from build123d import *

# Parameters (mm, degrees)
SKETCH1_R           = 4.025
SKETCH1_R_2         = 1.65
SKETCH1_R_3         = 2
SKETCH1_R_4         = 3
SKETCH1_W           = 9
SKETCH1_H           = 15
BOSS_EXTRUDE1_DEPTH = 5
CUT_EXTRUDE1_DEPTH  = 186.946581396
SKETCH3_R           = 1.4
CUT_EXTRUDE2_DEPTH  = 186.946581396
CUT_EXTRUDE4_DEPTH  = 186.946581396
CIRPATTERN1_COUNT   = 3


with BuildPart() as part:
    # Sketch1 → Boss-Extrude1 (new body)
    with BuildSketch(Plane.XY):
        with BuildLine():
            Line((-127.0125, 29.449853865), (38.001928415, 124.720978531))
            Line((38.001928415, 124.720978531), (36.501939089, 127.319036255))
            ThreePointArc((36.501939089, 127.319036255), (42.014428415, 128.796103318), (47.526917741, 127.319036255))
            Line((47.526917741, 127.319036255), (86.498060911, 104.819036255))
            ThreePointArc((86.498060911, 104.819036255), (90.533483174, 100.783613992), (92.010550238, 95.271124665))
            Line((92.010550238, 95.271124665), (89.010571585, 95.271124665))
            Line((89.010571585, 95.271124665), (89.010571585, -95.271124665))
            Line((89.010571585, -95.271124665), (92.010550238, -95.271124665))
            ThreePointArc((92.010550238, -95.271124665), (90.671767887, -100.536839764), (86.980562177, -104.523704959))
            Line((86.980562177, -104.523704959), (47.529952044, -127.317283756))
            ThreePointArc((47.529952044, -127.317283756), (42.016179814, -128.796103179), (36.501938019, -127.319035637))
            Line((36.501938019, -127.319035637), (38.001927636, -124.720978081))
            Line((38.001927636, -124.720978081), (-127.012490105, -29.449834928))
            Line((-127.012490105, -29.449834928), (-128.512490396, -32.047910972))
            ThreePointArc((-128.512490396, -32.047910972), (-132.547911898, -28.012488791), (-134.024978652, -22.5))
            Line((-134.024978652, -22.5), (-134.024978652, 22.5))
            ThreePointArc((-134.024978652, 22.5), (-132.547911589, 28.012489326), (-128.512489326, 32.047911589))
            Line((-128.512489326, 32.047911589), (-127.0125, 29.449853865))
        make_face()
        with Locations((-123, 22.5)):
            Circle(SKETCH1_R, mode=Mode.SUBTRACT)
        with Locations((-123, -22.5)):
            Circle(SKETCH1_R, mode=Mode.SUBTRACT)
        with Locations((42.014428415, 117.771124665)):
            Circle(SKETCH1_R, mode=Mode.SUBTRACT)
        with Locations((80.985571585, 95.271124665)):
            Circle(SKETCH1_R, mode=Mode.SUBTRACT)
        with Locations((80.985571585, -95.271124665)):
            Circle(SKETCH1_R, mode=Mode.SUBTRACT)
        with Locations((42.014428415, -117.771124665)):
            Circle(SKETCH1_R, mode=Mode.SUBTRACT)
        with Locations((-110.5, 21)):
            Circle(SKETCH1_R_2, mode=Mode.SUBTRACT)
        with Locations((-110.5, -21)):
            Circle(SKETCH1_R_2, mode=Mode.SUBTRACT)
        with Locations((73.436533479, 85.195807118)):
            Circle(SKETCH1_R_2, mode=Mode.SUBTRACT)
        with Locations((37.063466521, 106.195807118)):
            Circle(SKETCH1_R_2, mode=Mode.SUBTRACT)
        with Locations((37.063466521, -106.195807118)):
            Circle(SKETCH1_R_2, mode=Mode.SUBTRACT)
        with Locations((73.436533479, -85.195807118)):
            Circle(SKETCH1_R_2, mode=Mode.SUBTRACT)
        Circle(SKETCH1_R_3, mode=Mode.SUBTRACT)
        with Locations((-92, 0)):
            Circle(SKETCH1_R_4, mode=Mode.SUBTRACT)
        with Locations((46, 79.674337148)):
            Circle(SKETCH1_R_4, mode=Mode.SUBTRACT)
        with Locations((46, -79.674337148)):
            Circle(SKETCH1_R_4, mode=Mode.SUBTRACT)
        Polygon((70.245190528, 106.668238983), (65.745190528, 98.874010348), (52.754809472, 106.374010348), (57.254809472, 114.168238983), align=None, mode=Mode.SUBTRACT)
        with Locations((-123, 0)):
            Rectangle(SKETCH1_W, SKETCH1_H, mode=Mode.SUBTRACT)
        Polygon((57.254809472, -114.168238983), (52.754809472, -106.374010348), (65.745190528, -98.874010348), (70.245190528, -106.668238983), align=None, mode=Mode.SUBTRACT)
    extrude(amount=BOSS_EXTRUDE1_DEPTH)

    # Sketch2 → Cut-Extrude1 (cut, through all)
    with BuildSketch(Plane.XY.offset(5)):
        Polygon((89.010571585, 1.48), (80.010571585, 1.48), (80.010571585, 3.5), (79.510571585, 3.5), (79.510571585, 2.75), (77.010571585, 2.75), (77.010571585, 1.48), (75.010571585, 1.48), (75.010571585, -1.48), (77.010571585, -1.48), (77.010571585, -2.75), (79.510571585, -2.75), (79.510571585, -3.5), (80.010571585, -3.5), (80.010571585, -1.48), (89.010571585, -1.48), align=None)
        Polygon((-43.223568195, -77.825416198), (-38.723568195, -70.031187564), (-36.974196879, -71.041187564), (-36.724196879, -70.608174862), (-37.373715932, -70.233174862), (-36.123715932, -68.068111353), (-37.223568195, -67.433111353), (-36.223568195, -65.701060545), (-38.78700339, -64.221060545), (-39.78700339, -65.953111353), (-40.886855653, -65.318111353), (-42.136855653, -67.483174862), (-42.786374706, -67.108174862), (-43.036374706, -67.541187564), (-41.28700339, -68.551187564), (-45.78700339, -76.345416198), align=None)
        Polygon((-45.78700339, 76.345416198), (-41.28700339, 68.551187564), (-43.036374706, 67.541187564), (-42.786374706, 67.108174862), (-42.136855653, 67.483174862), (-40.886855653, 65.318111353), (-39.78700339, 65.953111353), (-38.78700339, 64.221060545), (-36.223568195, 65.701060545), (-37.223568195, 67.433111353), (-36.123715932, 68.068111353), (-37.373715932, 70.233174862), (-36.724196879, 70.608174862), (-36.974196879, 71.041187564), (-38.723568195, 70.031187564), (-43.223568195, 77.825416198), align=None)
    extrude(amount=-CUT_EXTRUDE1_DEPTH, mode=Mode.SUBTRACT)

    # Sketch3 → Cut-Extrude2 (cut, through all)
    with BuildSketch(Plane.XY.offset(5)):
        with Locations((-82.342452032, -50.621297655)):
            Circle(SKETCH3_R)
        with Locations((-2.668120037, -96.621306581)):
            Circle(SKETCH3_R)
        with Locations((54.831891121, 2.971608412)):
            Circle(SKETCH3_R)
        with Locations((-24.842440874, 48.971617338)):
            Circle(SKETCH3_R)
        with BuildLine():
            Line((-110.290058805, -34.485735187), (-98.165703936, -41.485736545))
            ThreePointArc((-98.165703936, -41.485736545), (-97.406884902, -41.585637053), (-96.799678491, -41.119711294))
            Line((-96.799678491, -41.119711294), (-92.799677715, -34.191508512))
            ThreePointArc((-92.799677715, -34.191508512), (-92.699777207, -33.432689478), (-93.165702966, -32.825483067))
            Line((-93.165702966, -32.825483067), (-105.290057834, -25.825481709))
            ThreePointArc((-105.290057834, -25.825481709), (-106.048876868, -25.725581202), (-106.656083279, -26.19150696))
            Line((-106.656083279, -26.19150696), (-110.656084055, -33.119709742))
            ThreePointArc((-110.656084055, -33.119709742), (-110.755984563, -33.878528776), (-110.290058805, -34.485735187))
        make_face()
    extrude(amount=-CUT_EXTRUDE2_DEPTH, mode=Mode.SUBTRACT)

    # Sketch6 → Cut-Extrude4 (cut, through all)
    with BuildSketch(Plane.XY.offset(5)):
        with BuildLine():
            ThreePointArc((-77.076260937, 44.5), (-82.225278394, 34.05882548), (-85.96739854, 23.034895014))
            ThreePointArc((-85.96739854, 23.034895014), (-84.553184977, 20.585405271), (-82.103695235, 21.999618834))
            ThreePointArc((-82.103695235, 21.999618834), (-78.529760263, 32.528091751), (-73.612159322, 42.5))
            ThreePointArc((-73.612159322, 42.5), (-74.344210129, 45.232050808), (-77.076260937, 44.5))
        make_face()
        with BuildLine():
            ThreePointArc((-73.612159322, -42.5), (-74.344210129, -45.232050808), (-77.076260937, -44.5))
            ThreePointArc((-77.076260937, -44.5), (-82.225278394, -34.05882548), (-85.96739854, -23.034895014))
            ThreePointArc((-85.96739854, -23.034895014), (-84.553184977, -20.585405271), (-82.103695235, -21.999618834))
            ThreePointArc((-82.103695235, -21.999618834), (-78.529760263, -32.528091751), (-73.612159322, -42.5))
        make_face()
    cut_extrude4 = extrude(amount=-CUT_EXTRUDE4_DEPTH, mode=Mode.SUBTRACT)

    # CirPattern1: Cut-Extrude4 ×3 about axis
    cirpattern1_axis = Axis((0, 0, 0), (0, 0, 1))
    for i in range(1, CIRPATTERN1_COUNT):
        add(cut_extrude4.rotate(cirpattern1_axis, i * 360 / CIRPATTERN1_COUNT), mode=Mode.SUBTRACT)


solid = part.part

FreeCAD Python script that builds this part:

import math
import FreeCAD as App
import Part
import Sketcher
from FreeCAD import Vector
Q = App.Units.Quantity

doc = App.newDocument("Part")
body = doc.addObject("PartDesign::Body", "Body")

sketch1 = body.newObject("Sketcher::SketchObject", "Sketch")
sketch1.AttachmentSupport = (doc.getObject("XY_Plane"), [""])
sketch1.MapMode = "FlatFace"
sketch1.addGeometry(Part.LineSegment(Vector(38.001928, 124.720979, 0), Vector(-127.0125, 29.449854, 0)), False)
sketch1.addGeometry(Part.LineSegment(Vector(-127.0125, 29.449854, 0), Vector(-128.512489, 32.047912, 0)), False)
sketch1.addGeometry(Part.ArcOfCircle(Part.Circle(Vector(-123, 22.5, 0), Vector(0, 0, 1), 11.024979), math.radians(120), math.radians(180)), False)
sketch1.addGeometry(Part.LineSegment(Vector(-134.024979, 22.5, 0), Vector(-134.024979, -22.5, 0)), False)
sketch1.addGeometry(Part.ArcOfCircle(Part.Circle(Vector(-123, -22.5, 0), Vector(0, 0, 1), 11.024979), math.radians(180), math.radians(239.999994)), False)
sketch1.addGeometry(Part.LineSegment(Vector(-128.51249, -32.047911, 0), Vector(-127.01249, -29.449835, 0)), False)
sketch1.addGeometry(Part.LineSegment(Vector(-127.01249, -29.449835, 0), Vector(38.001928, -124.720978, 0)), False)
sketch1.addGeometry(Part.LineSegment(Vector(38.001928, -124.720978, 0), Vector(36.501938, -127.319036, 0)), False)
sketch1.addGeometry(Part.ArcOfCircle(Part.Circle(Vector(42.014428, -117.771125, 0), Vector(0, 0, 1), 11.024979), math.radians(-120.000006), math.radians(-59.98179)), False)
sketch1.addGeometry(Part.LineSegment(Vector(47.529952, -127.317284, 0), Vector(86.980562, -104.523705, 0)), False)
sketch1.addGeometry(Part.ArcOfCircle(Part.Circle(Vector(80.985572, -95.271125, 0), Vector(0, 0, 1), 11.024979), math.radians(-57.059734), math.radians(0)), False)
sketch1.addGeometry(Part.LineSegment(Vector(92.01055, -95.271125, 0), Vector(89.010572, -95.271125, 0)), False)
sketch1.addGeometry(Part.LineSegment(Vector(89.010572, -95.271125, 0), Vector(89.010572, 95.271125, 0)), False)
sketch1.addGeometry(Part.LineSegment(Vector(89.010572, 95.271125, 0), Vector(92.01055, 95.271125, 0)), False)
sketch1.addGeometry(Part.ArcOfCircle(Part.Circle(Vector(80.985572, 95.271125, 0), Vector(0, 0, 1), 11.024979), math.radians(0), math.radians(60)), False)
sketch1.addGeometry(Part.LineSegment(Vector(86.498061, 104.819036, 0), Vector(47.526918, 127.319036, 0)), False)
sketch1.addGeometry(Part.ArcOfCircle(Part.Circle(Vector(42.014428, 117.771125, 0), Vector(0, 0, 1), 11.024979), math.radians(60), math.radians(120)), False)
sketch1.addGeometry(Part.LineSegment(Vector(36.501939, 127.319036, 0), Vector(38.001928, 124.720979, 0)), False)
sketch1.addGeometry(Part.Circle(Vector(80.985572, -95.271125, 0), Vector(0, 0, 1), 4.025), False)
sketch1.addGeometry(Part.LineSegment(Vector(57.254809, -114.168239, 0), Vector(52.754809, -106.37401, 0)), False)
sketch1.addGeometry(Part.LineSegment(Vector(52.754809, -106.37401, 0), Vector(65.745191, -98.87401, 0)), False)
sketch1.addGeometry(Part.LineSegment(Vector(65.745191, -98.87401, 0), Vector(70.245191, -106.668239, 0)), False)
sketch1.addGeometry(Part.LineSegment(Vector(70.245191, -106.668239, 0), Vector(57.254809, -114.168239, 0)), False)
sketch1.addGeometry(Part.Circle(Vector(42.014428, -117.771125, 0), Vector(0, 0, 1), 4.025), False)
sketch1.addGeometry(Part.Circle(Vector(37.063467, -106.195807, 0), Vector(0, 0, 1), 1.65), False)
sketch1.addGeometry(Part.Circle(Vector(73.436533, -85.195807, 0), Vector(0, 0, 1), 1.65), False)
sketch1.addGeometry(Part.Circle(Vector(46, -79.674337, 0), Vector(0, 0, 1), 3), False)
sketch1.addGeometry(Part.Circle(Vector(-110.5, -21, 0), Vector(0, 0, 1), 1.65), False)
sketch1.addGeometry(Part.Circle(Vector(-123, -22.5, 0), Vector(0, 0, 1), 4.025), False)
sketch1.addGeometry(Part.Circle(Vector(0, 0, 0), Vector(0, 0, 1), 2), False)
sketch1.addGeometry(Part.Circle(Vector(73.436533, 85.195807, 0), Vector(0, 0, 1), 1.65), False)
sketch1.addGeometry(Part.Circle(Vector(46, 79.674337, 0), Vector(0, 0, 1), 3), False)
sketch1.addGeometry(Part.Circle(Vector(80.985572, 95.271125, 0), Vector(0, 0, 1), 4.025), False)
sketch1.addGeometry(Part.LineSegment(Vector(70.245191, 106.668239, 0), Vector(65.745191, 98.87401, 0)), False)
sketch1.addGeometry(Part.LineSegment(Vector(65.745191, 98.87401, 0), Vector(52.754809, 106.37401, 0)), False)
sketch1.addGeometry(Part.LineSegment(Vector(52.754809, 106.37401, 0), Vector(57.254809, 114.168239, 0)), False)
sketch1.addGeometry(Part.LineSegment(Vector(57.254809, 114.168239, 0), Vector(70.245191, 106.668239, 0)), False)
sketch1.addGeometry(Part.Circle(Vector(37.063467, 106.195807, 0), Vector(0, 0, 1), 1.65), False)
sketch1.addGeometry(Part.Circle(Vector(42.014428, 117.771125, 0), Vector(0, 0, 1), 4.025), False)
sketch1.addGeometry(Part.Circle(Vector(-92, 0, 0), Vector(0, 0, 1), 3), False)
sketch1.addGeometry(Part.LineSegment(Vector(-127.5, -7.5, 0), Vector(-127.5, 7.5, 0)), False)
sketch1.addGeometry(Part.LineSegment(Vector(-127.5, 7.5, 0), Vector(-118.5, 7.5, 0)), False)
sketch1.addGeometry(Part.LineSegment(Vector(-118.5, 7.5, 0), Vector(-118.5, -7.5, 0)), False)
sketch1.addGeometry(Part.LineSegment(Vector(-118.5, -7.5, 0), Vector(-127.5, -7.5, 0)), False)
sketch1.addGeometry(Part.Circle(Vector(-110.5, 21, 0), Vector(0, 0, 1), 1.65), False)
sketch1.addGeometry(Part.Circle(Vector(-123, 22.5, 0), Vector(0, 0, 1), 4.025), False)
sketch1.addConstraint(Sketcher.Constraint("Coincident", 0, 2, 1, 1))
sketch1.addConstraint(Sketcher.Constraint("Coincident", 1, 2, 2, 1))
sketch1.addConstraint(Sketcher.Constraint("Coincident", 2, 2, 3, 1))
sketch1.addConstraint(Sketcher.Constraint("Coincident", 3, 2, 4, 1))
sketch1.addConstraint(Sketcher.Constraint("Coincident", 4, 2, 5, 1))
sketch1.addConstraint(Sketcher.Constraint("Coincident", 5, 2, 6, 1))
sketch1.addConstraint(Sketcher.Constraint("Coincident", 6, 2, 7, 1))
sketch1.addConstraint(Sketcher.Constraint("Coincident", 7, 2, 8, 1))
sketch1.addConstraint(Sketcher.Constraint("Coincident", 8, 2, 9, 1))
sketch1.addConstraint(Sketcher.Constraint("Coincident", 9, 2, 10, 1))
sketch1.addConstraint(Sketcher.Constraint("Coincident", 10, 2, 11, 1))
sketch1.addConstraint(Sketcher.Constraint("Coincident", 11, 2, 12, 1))
sketch1.addConstraint(Sketcher.Constraint("Coincident", 12, 2, 13, 1))
sketch1.addConstraint(Sketcher.Constraint("Coincident", 13, 2, 14, 1))
sketch1.addConstraint(Sketcher.Constraint("Coincident", 14, 2, 15, 1))
sketch1.addConstraint(Sketcher.Constraint("Coincident", 15, 2, 16, 1))
sketch1.addConstraint(Sketcher.Constraint("Coincident", 16, 2, 17, 1))
sketch1.addConstraint(Sketcher.Constraint("Coincident", 17, 2, 0, 1))
sketch1.addConstraint(Sketcher.Constraint("Coincident", 19, 2, 20, 1))
sketch1.addConstraint(Sketcher.Constraint("Coincident", 20, 2, 21, 1))
sketch1.addConstraint(Sketcher.Constraint("Coincident", 21, 2, 22, 1))
sketch1.addConstraint(Sketcher.Constraint("Coincident", 22, 2, 19, 1))
sketch1.addConstraint(Sketcher.Constraint("Coincident", 33, 2, 34, 1))
sketch1.addConstraint(Sketcher.Constraint("Coincident", 34, 2, 35, 1))
sketch1.addConstraint(Sketcher.Constraint("Coincident", 35, 2, 36, 1))
sketch1.addConstraint(Sketcher.Constraint("Coincident", 36, 2, 33, 1))
sketch1.addConstraint(Sketcher.Constraint("Coincident", 40, 2, 41, 1))
sketch1.addConstraint(Sketcher.Constraint("Coincident", 41, 2, 42, 1))
sketch1.addConstraint(Sketcher.Constraint("Coincident", 42, 2, 43, 1))
sketch1.addConstraint(Sketcher.Constraint("Coincident", 43, 2, 40, 1))
sketch1.addConstraint(Sketcher.Constraint("Vertical", 3))
sketch1.addConstraint(Sketcher.Constraint("Horizontal", 11))
sketch1.addConstraint(Sketcher.Constraint("Vertical", 12))
sketch1.addConstraint(Sketcher.Constraint("Horizontal", 13))
sketch1.addConstraint(Sketcher.Constraint("Vertical", 40))
sketch1.addConstraint(Sketcher.Constraint("Horizontal", 41))
sketch1.addConstraint(Sketcher.Constraint("Vertical", 42))
sketch1.addConstraint(Sketcher.Constraint("Horizontal", 43))
sketch1.addConstraint(Sketcher.Constraint("Coincident", 29, 3, -1, 1))
sketch1.addConstraint(Sketcher.Constraint("Coincident", 18, 3, 10, 3))
sketch1.addConstraint(Sketcher.Constraint("Coincident", 23, 3, 8, 3))
sketch1.addConstraint(Sketcher.Constraint("Coincident", 28, 3, 4, 3))
sketch1.addConstraint(Sketcher.Constraint("Coincident", 32, 3, 14, 3))
sketch1.addConstraint(Sketcher.Constraint("Coincident", 38, 3, 16, 3))
sketch1.addConstraint(Sketcher.Constraint("Coincident", 45, 3, 2, 3))
sketch1.addConstraint(Sketcher.Constraint("PointOnObject", 39, 3, -1))
sketch1.addConstraint(Sketcher.Constraint("Diameter", 26, Q("6 mm")))
sketch1.addConstraint(Sketcher.Constraint("Diameter", 29, Q("4 mm")))
sketch1.addConstraint(Sketcher.Constraint("Diameter", 31, Q("6 mm")))
sketch1.addConstraint(Sketcher.Constraint("Diameter", 39, Q("6 mm")))
sketch1.addConstraint(Sketcher.Constraint("Diameter", 24, Q("3.3 mm")))
sketch1.addConstraint(Sketcher.Constraint("Diameter", 25, Q("3.3 mm")))
sketch1.addConstraint(Sketcher.Constraint("Diameter", 27, Q("3.3 mm")))
sketch1.addConstraint(Sketcher.Constraint("Diameter", 30, Q("3.3 mm")))
sketch1.addConstraint(Sketcher.Constraint("Diameter", 37, Q("3.3 mm")))
sketch1.addConstraint(Sketcher.Constraint("Diameter", 44, Q("3.3 mm")))
sketch1.addConstraint(Sketcher.Constraint("Diameter", 18, Q("8.05 mm")))
sketch1.addConstraint(Sketcher.Constraint("Diameter", 23, Q("8.05 mm")))
sketch1.addConstraint(Sketcher.Constraint("Diameter", 28, Q("8.05 mm")))
sketch1.addConstraint(Sketcher.Constraint("Diameter", 32, Q("8.05 mm")))
sketch1.addConstraint(Sketcher.Constraint("Diameter", 38, Q("8.05 mm")))
sketch1.addConstraint(Sketcher.Constraint("Diameter", 45, Q("8.05 mm")))
sketch1.addConstraint(Sketcher.Constraint("DistanceX", 41, 1, 41, 2, Q("9 mm")))
sketch1.addConstraint(Sketcher.Constraint("DistanceY", 3, 2, 3, 1, Q("45 mm")))
sketch1.addConstraint(Sketcher.Constraint("DistanceY", 40, 1, 40, 2, Q("15 mm")))
sketch1.addConstraint(Sketcher.Constraint("Distance", 5, Q("3 mm")))
sketch1.addConstraint(Sketcher.Constraint("Distance", 15, Q("45 mm")))
sketch1.addConstraint(Sketcher.Constraint("Distance", 19, Q("9 mm")))
sketch1.addConstraint(Sketcher.Constraint("Distance", 20, Q("15 mm")))
sketch1.addConstraint(Sketcher.Constraint("Distance", 21, Q("9 mm")))
sketch1.addConstraint(Sketcher.Constraint("Distance", 22, Q("15 mm")))
sketch1.addConstraint(Sketcher.Constraint("Distance", 33, Q("9 mm")))
sketch1.addConstraint(Sketcher.Constraint("Distance", 34, Q("15 mm")))
sketch1.addConstraint(Sketcher.Constraint("Distance", 35, Q("9 mm")))
sketch1.addConstraint(Sketcher.Constraint("Distance", 36, Q("15 mm")))
sketch1.addConstraint(Sketcher.Constraint("DistanceX", 2, 3, -1, 1, Q("123 mm")))
sketch1.addConstraint(Sketcher.Constraint("DistanceX", 4, 3, -1, 1, Q("123 mm")))
sketch1.addConstraint(Sketcher.Constraint("DistanceX", -1, 1, 26, 3, Q("46 mm")))
sketch1.addConstraint(Sketcher.Constraint("DistanceY", 27, 3, -1, 1, Q("21 mm")))
sketch1.addConstraint(Sketcher.Constraint("DistanceX", -1, 1, 31, 3, Q("46 mm")))
sketch1.addConstraint(Sketcher.Constraint("DistanceX", 39, 3, -1, 1, Q("92 mm")))
sketch1.addConstraint(Sketcher.Constraint("DistanceY", -1, 1, 44, 3, Q("21 mm")))
sketch1.addConstraint(Sketcher.Constraint("DistanceY", 4, 3, 2, 3, Q("45 mm")))
sketch1.addConstraint(Sketcher.Constraint("DistanceY", 24, 3, 25, 3, Q("21 mm")))
sketch1.addConstraint(Sketcher.Constraint("DistanceY", 30, 3, 37, 3, Q("21 mm")))
sketch1.addConstraint(Sketcher.Constraint("DistanceY", 3, 2, 2, 3, Q("45 mm")))
sketch1.addConstraint(Sketcher.Constraint("DistanceY", 40, 2, 2, 3, Q("15 mm")))
sketch1.addConstraint(Sketcher.Constraint("DistanceX", 40, 2, 44, 3, Q("17 mm")))
sketch1.addConstraint(Sketcher.Constraint("DistanceX", 42, 2, 27, 3, Q("8 mm")))
sketch1.addConstraint(Sketcher.Constraint("DistanceY", -1, 1, 2, 3, Q("22.5 mm")))
sketch1.addConstraint(Sketcher.Constraint("DistanceX", 27, 3, -1, 1, Q("110.5 mm")))
sketch1.addConstraint(Sketcher.Constraint("DistanceY", 8, 3, 10, 3, Q("22.5 mm")))
sketch1.addConstraint(Sketcher.Constraint("DistanceY", 14, 3, 16, 3, Q("22.5 mm")))
sketch1.addConstraint(Sketcher.Constraint("DistanceX", 4, 2, 5, 2, Q("1.5 mm")))
sketch1.addConstraint(Sketcher.Constraint("DistanceY", 12, 2, 16, 3, Q("22.5 mm")))
sketch1.addConstraint(Sketcher.Constraint("DistanceY", 14, 2, 15, 2, Q("22.5 mm")))
sketch1.addConstraint(Sketcher.Constraint("DistanceY", 19, 2, 20, 2, Q("7.5 mm")))
sketch1.addConstraint(Sketcher.Constraint("DistanceX", 20, 2, 21, 2, Q("4.5 mm")))
sketch1.addConstraint(Sketcher.Constraint("DistanceY", 33, 2, 34, 2, Q("7.5 mm")))
sketch1.addConstraint(Sketcher.Constraint("DistanceX", 34, 2, 35, 2, Q("4.5 mm")))
sketch1.addConstraint(Sketcher.Constraint("Radius", 2, Q("11.024979 mm")))
sketch1.addConstraint(Sketcher.Constraint("Radius", 8, Q("11.024979 mm")))
sketch1.addConstraint(Sketcher.Constraint("Radius", 10, Q("11.024979 mm")))
sketch1.addConstraint(Sketcher.Constraint("Radius", 14, Q("11.024979 mm")))
sketch1.addConstraint(Sketcher.Constraint("Radius", 16, Q("11.024979 mm")))
sketch1.addConstraint(Sketcher.Constraint("DistanceX", 10, 3, 11, 2, Q("8.025 mm")))
sketch1.addConstraint(Sketcher.Constraint("DistanceX", 32, 3, 12, 2, Q("8.025 mm")))
sketch1.addConstraint(Sketcher.Constraint("DistanceY", 12, 1, 12, 2, Q("190.542249 mm")))
sketch1.addConstraint(Sketcher.Constraint("DistanceX", 0, 2, -1, 1, Q("127.0125 mm")))
sketch1.addConstraint(Sketcher.Constraint("DistanceX", 6, 2, 8, 3, Q("4.012501 mm")))
sketch1.addConstraint(Sketcher.Constraint("DistanceY", 7, 2, 26, 3, Q("47.644698 mm")))
sketch1.addConstraint(Sketcher.Constraint("DistanceY", 31, 3, 16, 2, Q("47.644699 mm")))
sketch1.addConstraint(Sketcher.Constraint("DistanceX", 17, 2, 16, 3, Q("4.0125 mm")))
sketch1.addConstraint(Sketcher.Constraint("Distance", 0, Q("190.542249 mm")))
sketch1.addConstraint(Sketcher.Constraint("Distance", 1, Q("2.999979 mm")))
sketch1.addConstraint(Sketcher.Constraint("Distance", 6, Q("190.542249 mm")))
sketch1.addConstraint(Sketcher.Constraint("Distance", 7, Q("2.999979 mm")))
sketch1.addConstraint(Sketcher.Constraint("Distance", 17, Q("2.999979 mm")))
sketch1.addConstraint(Sketcher.Constraint("DistanceX", -1, 1, 8, 3, Q("42.014428 mm")))
sketch1.addConstraint(Sketcher.Constraint("DistanceX", -1, 1, 10, 3, Q("80.985572 mm")))
sketch1.addConstraint(Sketcher.Constraint("DistanceX", 1, 2, -1, 1, Q("128.512489 mm")))
sketch1.addConstraint(Sketcher.Constraint("DistanceX", 4, 2, -1, 1, Q("128.51249 mm")))
sketch1.addConstraint(Sketcher.Constraint("DistanceX", -1, 1, 7, 2, Q("36.501938 mm")))
sketch1.addConstraint(Sketcher.Constraint("DistanceX", -1, 1, 14, 2, Q("86.498061 mm")))
sketch1.addConstraint(Sketcher.Constraint("DistanceX", -1, 1, 16, 2, Q("36.501939 mm")))
sketch1.addConstraint(Sketcher.Constraint("DistanceX", -1, 1, 19, 2, Q("52.754809 mm")))
sketch1.addConstraint(Sketcher.Constraint("DistanceY", 19, 2, -1, 1, Q("106.37401 mm")))
sketch1.addConstraint(Sketcher.Constraint("DistanceX", -1, 1, 33, 2, Q("65.745191 mm")))
sketch1.addConstraint(Sketcher.Constraint("DistanceY", -1, 1, 33, 2, Q("98.87401 mm")))
sketch1.addConstraint(Sketcher.Constraint("DistanceX", 24, 3, 23, 3, Q("4.950962 mm")))
sketch1.addConstraint(Sketcher.Constraint("DistanceX", 25, 3, 18, 3, Q("7.549038 mm")))
sketch1.addConstraint(Sketcher.Constraint("DistanceY", 25, 3, 26, 3, Q("5.52147 mm")))
sketch1.addConstraint(Sketcher.Constraint("DistanceX", 30, 3, 14, 3, Q("7.549038 mm")))
sketch1.addConstraint(Sketcher.Constraint("DistanceY", 31, 3, 30, 3, Q("5.52147 mm")))
sketch1.addConstraint(Sketcher.Constraint("DistanceX", 37, 3, 16, 3, Q("4.950962 mm")))
sketch1.addConstraint(Sketcher.Constraint("DistanceY", 8, 2, 8, 3, Q("9.546159 mm")))
sketch1.addConstraint(Sketcher.Constraint("DistanceX", 10, 3, 9, 2, Q("5.994991 mm")))
pad1 = body.newObject("PartDesign::Pad", "Pad")
pad1.Profile = sketch1
pad1.Length = 5

sketch2 = body.newObject("Sketcher::SketchObject", "Sketch001")
sketch2.AttachmentSupport = (doc.getObject("XY_Plane"), [""])
sketch2.MapMode = "FlatFace"
sketch2.AttachmentOffset = App.Placement(Vector(0, 0, 5), App.Rotation())
sketch2.addGeometry(Part.LineSegment(Vector(89, 1.5, 0), Vector(80, 1.5, 0)), False)
sketch2.addGeometry(Part.LineSegment(Vector(80, 1.5, 0), Vector(80, 3.5, 0)), False)
sketch2.addGeometry(Part.LineSegment(Vector(80, 3.5, 0), Vector(79.5, 3.5, 0)), False)
sketch2.addGeometry(Part.LineSegment(Vector(79.5, 3.5, 0), Vector(79.5, 2.8, 0)), False)
sketch2.addGeometry(Part.LineSegment(Vector(79.5, 2.8, 0), Vector(77, 2.8, 0)), False)
sketch2.addGeometry(Part.LineSegment(Vector(77, 2.8, 0), Vector(77, 1.5, 0)), False)
sketch2.addGeometry(Part.LineSegment(Vector(77, 1.5, 0), Vector(75, 1.5, 0)), False)
sketch2.addGeometry(Part.LineSegment(Vector(75, 1.5, 0), Vector(75, -1.5, 0)), False)
sketch2.addGeometry(Part.LineSegment(Vector(75, -1.5, 0), Vector(77, -1.5, 0)), False)
sketch2.addGeometry(Part.LineSegment(Vector(77, -1.5, 0), Vector(77, -2.8, 0)), False)
sketch2.addGeometry(Part.LineSegment(Vector(77, -2.8, 0), Vector(79.5, -2.8, 0)), False)
sketch2.addGeometry(Part.LineSegment(Vector(79.5, -2.8, 0), Vector(79.5, -3.5, 0)), False)
sketch2.addGeometry(Part.LineSegment(Vector(79.5, -3.5, 0), Vector(80, -3.5, 0)), False)
sketch2.addGeometry(Part.LineSegment(Vector(80, -3.5, 0), Vector(80, -1.5, 0)), False)
sketch2.addGeometry(Part.LineSegment(Vector(80, -1.5, 0), Vector(89, -1.5, 0)), False)
sketch2.addGeometry(Part.LineSegment(Vector(89, -1.5, 0), Vector(89, 1.5, 0)), False)
sketch2.addGeometry(Part.LineSegment(Vector(-43.2, -77.8, 0), Vector(-38.7, -70, 0)), False)
sketch2.addGeometry(Part.LineSegment(Vector(-38.7, -70, 0), Vector(-37, -71, 0)), False)
sketch2.addGeometry(Part.LineSegment(Vector(-37, -71, 0), Vector(-36.7, -70.6, 0)), False)
sketch2.addGeometry(Part.LineSegment(Vector(-36.7, -70.6, 0), Vector(-37.4, -70.2, 0)), False)
sketch2.addGeometry(Part.LineSegment(Vector(-37.4, -70.2, 0), Vector(-36.1, -68.1, 0)), False)
sketch2.addGeometry(Part.LineSegment(Vector(-36.1, -68.1, 0), Vector(-37.2, -67.4, 0)), False)
sketch2.addGeometry(Part.LineSegment(Vector(-37.2, -67.4, 0), Vector(-36.2, -65.7, 0)), False)
sketch2.addGeometry(Part.LineSegment(Vector(-36.2, -65.7, 0), Vector(-38.8, -64.2, 0)), False)
sketch2.addGeometry(Part.LineSegment(Vector(-38.8, -64.2, 0), Vector(-39.8, -66, 0)), False)
sketch2.addGeometry(Part.LineSegment(Vector(-39.8, -66, 0), Vector(-40.9, -65.3, 0)), False)
sketch2.addGeometry(Part.LineSegment(Vector(-40.9, -65.3, 0), Vector(-42.1, -67.5, 0)), False)
sketch2.addGeometry(Part.LineSegment(Vector(-42.1, -67.5, 0), Vector(-42.8, -67.1, 0)), False)
sketch2.addGeometry(Part.LineSegment(Vector(-42.8, -67.1, 0), Vector(-43, -67.5, 0)), False)
sketch2.addGeometry(Part.LineSegment(Vector(-43, -67.5, 0), Vector(-41.3, -68.6, 0)), False)
sketch2.addGeometry(Part.LineSegment(Vector(-41.3, -68.6, 0), Vector(-45.8, -76.3, 0)), False)
sketch2.addGeometry(Part.LineSegment(Vector(-45.8, -76.3, 0), Vector(-43.2, -77.8, 0)), False)
sketch2.addGeometry(Part.LineSegment(Vector(-45.8, 76.3, 0), Vector(-41.3, 68.6, 0)), False)
sketch2.addGeometry(Part.LineSegment(Vector(-41.3, 68.6, 0), Vector(-43, 67.5, 0)), False)
sketch2.addGeometry(Part.LineSegment(Vector(-43, 67.5, 0), Vector(-42.8, 67.1, 0)), False)
sketch2.addGeometry(Part.LineSegment(Vector(-42.8, 67.1, 0), Vector(-42.1, 67.5, 0)), False)
sketch2.addGeometry(Part.LineSegment(Vector(-42.1, 67.5, 0), Vector(-40.9, 65.3, 0)), False)
sketch2.addGeometry(Part.LineSegment(Vector(-40.9, 65.3, 0), Vector(-39.8, 66, 0)), False)
sketch2.addGeometry(Part.LineSegment(Vector(-39.8, 66, 0), Vector(-38.8, 64.2, 0)), False)
sketch2.addGeometry(Part.LineSegment(Vector(-38.8, 64.2, 0), Vector(-36.2, 65.7, 0)), False)
sketch2.addGeometry(Part.LineSegment(Vector(-36.2, 65.7, 0), Vector(-37.2, 67.4, 0)), False)
sketch2.addGeometry(Part.LineSegment(Vector(-37.2, 67.4, 0), Vector(-36.1, 68.1, 0)), False)
sketch2.addGeometry(Part.LineSegment(Vector(-36.1, 68.1, 0), Vector(-37.4, 70.2, 0)), False)
sketch2.addGeometry(Part.LineSegment(Vector(-37.4, 70.2, 0), Vector(-36.7, 70.6, 0)), False)
sketch2.addGeometry(Part.LineSegment(Vector(-36.7, 70.6, 0), Vector(-37, 71, 0)), False)
sketch2.addGeometry(Part.LineSegment(Vector(-37, 71, 0), Vector(-38.7, 70, 0)), False)
sketch2.addGeometry(Part.LineSegment(Vector(-38.7, 70, 0), Vector(-43.2, 77.8, 0)), False)
sketch2.addGeometry(Part.LineSegment(Vector(-43.2, 77.8, 0), Vector(-45.8, 76.3, 0)), False)
sketch2.addConstraint(Sketcher.Constraint("Coincident", 0, 2, 1, 1))
sketch2.addConstraint(Sketcher.Constraint("Coincident", 1, 2, 2, 1))
sketch2.addConstraint(Sketcher.Constraint("Coincident", 2, 2, 3, 1))
sketch2.addConstraint(Sketcher.Constraint("Coincident", 3, 2, 4, 1))
sketch2.addConstraint(Sketcher.Constraint("Coincident", 4, 2, 5, 1))
sketch2.addConstraint(Sketcher.Constraint("Coincident", 5, 2, 6, 1))
sketch2.addConstraint(Sketcher.Constraint("Coincident", 6, 2, 7, 1))
sketch2.addConstraint(Sketcher.Constraint("Coincident", 7, 2, 8, 1))
sketch2.addConstraint(Sketcher.Constraint("Coincident", 8, 2, 9, 1))
sketch2.addConstraint(Sketcher.Constraint("Coincident", 9, 2, 10, 1))
sketch2.addConstraint(Sketcher.Constraint("Coincident", 10, 2, 11, 1))
sketch2.addConstraint(Sketcher.Constraint("Coincident", 11, 2, 12, 1))
sketch2.addConstraint(Sketcher.Constraint("Coincident", 12, 2, 13, 1))
sketch2.addConstraint(Sketcher.Constraint("Coincident", 13, 2, 14, 1))
sketch2.addConstraint(Sketcher.Constraint("Coincident", 14, 2, 15, 1))
sketch2.addConstraint(Sketcher.Constraint("Coincident", 15, 2, 0, 1))
sketch2.addConstraint(Sketcher.Constraint("Coincident", 16, 2, 17, 1))
sketch2.addConstraint(Sketcher.Constraint("Coincident", 17, 2, 18, 1))
sketch2.addConstraint(Sketcher.Constraint("Coincident", 18, 2, 19, 1))
sketch2.addConstraint(Sketcher.Constraint("Coincident", 19, 2, 20, 1))
sketch2.addConstraint(Sketcher.Constraint("Coincident", 20, 2, 21, 1))
sketch2.addConstraint(Sketcher.Constraint("Coincident", 21, 2, 22, 1))
sketch2.addConstraint(Sketcher.Constraint("Coincident", 22, 2, 23, 1))
sketch2.addConstraint(Sketcher.Constraint("Coincident", 23, 2, 24, 1))
sketch2.addConstraint(Sketcher.Constraint("Coincident", 24, 2, 25, 1))
sketch2.addConstraint(Sketcher.Constraint("Coincident", 25, 2, 26, 1))
sketch2.addConstraint(Sketcher.Constraint("Coincident", 26, 2, 27, 1))
sketch2.addConstraint(Sketcher.Constraint("Coincident", 27, 2, 28, 1))
sketch2.addConstraint(Sketcher.Constraint("Coincident", 28, 2, 29, 1))
sketch2.addConstraint(Sketcher.Constraint("Coincident", 29, 2, 30, 1))
sketch2.addConstraint(Sketcher.Constraint("Coincident", 30, 2, 31, 1))
sketch2.addConstraint(Sketcher.Constraint("Coincident", 31, 2, 16, 1))
sketch2.addConstraint(Sketcher.Constraint("Coincident", 32, 2, 33, 1))
sketch2.addConstraint(Sketcher.Constraint("Coincident", 33, 2, 34, 1))
sketch2.addConstraint(Sketcher.Constraint("Coincident", 34, 2, 35, 1))
sketch2.addConstraint(Sketcher.Constraint("Coincident", 35, 2, 36, 1))
sketch2.addConstraint(Sketcher.Constraint("Coincident", 36, 2, 37, 1))
sketch2.addConstraint(Sketcher.Constraint("Coincident", 37, 2, 38, 1))
sketch2.addConstraint(Sketcher.Constraint("Coincident", 38, 2, 39, 1))
sketch2.addConstraint(Sketcher.Constraint("Coincident", 39, 2, 40, 1))
sketch2.addConstraint(Sketcher.Constraint("Coincident", 40, 2, 41, 1))
sketch2.addConstraint(Sketcher.Constraint("Coincident", 41, 2, 42, 1))
sketch2.addConstraint(Sketcher.Constraint("Coincident", 42, 2, 43, 1))
sketch2.addConstraint(Sketcher.Constraint("Coincident", 43, 2, 44, 1))
sketch2.addConstraint(Sketcher.Constraint("Coincident", 44, 2, 45, 1))
sketch2.addConstraint(Sketcher.Constraint("Coincident", 45, 2, 46, 1))
sketch2.addConstraint(Sketcher.Constraint("Coincident", 46, 2, 47, 1))
sketch2.addConstraint(Sketcher.Constraint("Coincident", 47, 2, 32, 1))
sketch2.addConstraint(Sketcher.Constraint("Horizontal", 0))
sketch2.addConstraint(Sketcher.Constraint("Vertical", 1))
sketch2.addConstraint(Sketcher.Constraint("Horizontal", 2))
sketch2.addConstraint(Sketcher.Constraint("Vertical", 3))
sketch2.addConstraint(Sketcher.Constraint("Horizontal", 4))
sketch2.addConstraint(Sketcher.Constraint("Vertical", 5))
sketch2.addConstraint(Sketcher.Constraint("Horizontal", 6))
sketch2.addConstraint(Sketcher.Constraint("Vertical", 7))
sketch2.addConstraint(Sketcher.Constraint("Horizontal", 8))
sketch2.addConstraint(Sketcher.Constraint("Vertical", 9))
sketch2.addConstraint(Sketcher.Constraint("Horizontal", 10))
sketch2.addConstraint(Sketcher.Constraint("Vertical", 11))
sketch2.addConstraint(Sketcher.Constraint("Horizontal", 12))
sketch2.addConstraint(Sketcher.Constraint("Vertical", 13))
sketch2.addConstraint(Sketcher.Constraint("Horizontal", 14))
sketch2.addConstraint(Sketcher.Constraint("Vertical", 15))
sketch2.addConstraint(Sketcher.Constraint("Symmetric", 5, 2, 8, 2, -1))
sketch2.addConstraint(Sketcher.Constraint("Symmetric", 3, 2, 10, 2, -1))
sketch2.addConstraint(Sketcher.Constraint("Symmetric", 1, 2, 12, 2, -1))
sketch2.addConstraint(Sketcher.Constraint("Symmetric", 29, 2, 32, 2, -1))
sketch2.addConstraint(Sketcher.Constraint("Symmetric", 28, 2, 33, 2, -1))
sketch2.addConstraint(Sketcher.Constraint("Symmetric", 27, 2, 34, 2, -1))
sketch2.addConstraint(Sketcher.Constraint("Symmetric", 26, 2, 35, 2, -1))
sketch2.addConstraint(Sketcher.Constraint("Symmetric", 25, 2, 36, 2, -1))
sketch2.addConstraint(Sketcher.Constraint("Symmetric", 24, 2, 37, 2, -1))
sketch2.addConstraint(Sketcher.Constraint("Symmetric", 23, 2, 38, 2, -1))
sketch2.addConstraint(Sketcher.Constraint("Symmetric", 22, 2, 39, 2, -1))
sketch2.addConstraint(Sketcher.Constraint("Symmetric", 21, 2, 40, 2, -1))
sketch2.addConstraint(Sketcher.Constraint("Symmetric", 20, 2, 41, 2, -1))
sketch2.addConstraint(Sketcher.Constraint("Symmetric", 19, 2, 42, 2, -1))
sketch2.addConstraint(Sketcher.Constraint("Symmetric", 18, 2, 43, 2, -1))
sketch2.addConstraint(Sketcher.Constraint("Symmetric", 17, 2, 44, 2, -1))
sketch2.addConstraint(Sketcher.Constraint("Symmetric", 16, 2, 45, 2, -1))
sketch2.addConstraint(Sketcher.Constraint("Symmetric", 31, 2, 46, 2, -1))
sketch2.addConstraint(Sketcher.Constraint("Symmetric", 30, 2, 47, 2, -1))
sketch2.addConstraint(Sketcher.Constraint("Perpendicular", 16, 17))
sketch2.addConstraint(Sketcher.Constraint("Perpendicular", 17, 18))
sketch2.addConstraint(Sketcher.Constraint("Perpendicular", 18, 19))
sketch2.addConstraint(Sketcher.Constraint("Perpendicular", 19, 20))
sketch2.addConstraint(Sketcher.Constraint("Perpendicular", 20, 21))
sketch2.addConstraint(Sketcher.Constraint("Perpendicular", 21, 22))
sketch2.addConstraint(Sketcher.Constraint("Perpendicular", 22, 23))
sketch2.addConstraint(Sketcher.Constraint("Perpendicular", 23, 24))
sketch2.addConstraint(Sketcher.Constraint("Perpendicular", 24, 25))
sketch2.addConstraint(Sketcher.Constraint("Perpendicular", 25, 26))
sketch2.addConstraint(Sketcher.Constraint("Perpendicular", 26, 27))
sketch2.addConstraint(Sketcher.Constraint("Perpendicular", 27, 28))
sketch2.addConstraint(Sketcher.Constraint("Perpendicular", 28, 29))
sketch2.addConstraint(Sketcher.Constraint("Perpendicular", 29, 30))
sketch2.addConstraint(Sketcher.Constraint("Perpendicular", 30, 31))
sketch2.addConstraint(Sketcher.Constraint("Horizontal", 0, 2, 5, 2))
sketch2.addConstraint(Sketcher.Constraint("Horizontal", 8, 2, 13, 2))
sketch2.addConstraint(Sketcher.Constraint("Equal", 22, 24))
sketch2.addConstraint(Sketcher.Constraint("Equal", 21, 25))
sketch2.addConstraint(Sketcher.Constraint("Equal", 20, 26))
sketch2.addConstraint(Sketcher.Constraint("Equal", 19, 27))
sketch2.addConstraint(Sketcher.Constraint("Equal", 18, 28))
sketch2.addConstraint(Sketcher.Constraint("Equal", 17, 29))
sketch2.addConstraint(Sketcher.Constraint("Equal", 23, 31))
sketch2.addConstraint(Sketcher.Constraint("DistanceX", 0, 2, 0, 1, Q("9 mm")))
sketch2.addConstraint(Sketcher.Constraint("DistanceX", 6, 2, 6, 1, Q("2 mm")))
sketch2.addConstraint(Sketcher.Constraint("Angle", 16, Q("60 deg")))
sketch2.addConstraint(Sketcher.Constraint("Distance", 16, Q("9 mm")))
sketch2.addConstraint(Sketcher.Constraint("Distance", 22, Q("2 mm")))
sketch2.addConstraint(Sketcher.Constraint("DistanceX", 2, 2, 2, 1, Q("0.5 mm")))
sketch2.addConstraint(Sketcher.Constraint("DistanceX", 4, 2, 4, 1, Q("2.5 mm")))
sketch2.addConstraint(Sketcher.Constraint("Distance", 18, Q("0.5 mm")))
sketch2.addConstraint(Sketcher.Constraint("Distance", 20, Q("2.5 mm")))
sketch2.addConstraint(Sketcher.Constraint("DistanceY", 1, 1, 1, 2, Q("2.02 mm")))
sketch2.addConstraint(Sketcher.Constraint("DistanceY", 3, 2, 3, 1, Q("0.75 mm")))
sketch2.addConstraint(Sketcher.Constraint("DistanceY", 7, 2, 7, 1, Q("2.96 mm")))
sketch2.addConstraint(Sketcher.Constraint("Distance", 17, Q("2.02 mm")))
sketch2.addConstraint(Sketcher.Constraint("Distance", 19, Q("0.75 mm")))
sketch2.addConstraint(Sketcher.Constraint("Distance", 23, Q("2.96 mm")))
sketch2.addConstraint(Sketcher.Constraint("DistanceY", 25, 2, 32, 2, Q("133.869299 mm")))
sketch2.addConstraint(Sketcher.Constraint("DistanceX", -1, 1, 0, 2, Q("80.010572 mm")))
sketch2.addConstraint(Sketcher.Constraint("DistanceX", 16, 2, -1, 1, Q("38.723568 mm")))
pocket1 = body.newObject("PartDesign::Pocket", "Pocket")
pocket1.Profile = sketch2
pocket1.Type = "ThroughAll"

sketch3 = body.newObject("Sketcher::SketchObject", "Sketch002")
sketch3.AttachmentSupport = (doc.getObject("XY_Plane"), [""])
sketch3.MapMode = "FlatFace"
sketch3.AttachmentOffset = App.Placement(Vector(0, 0, 5), App.Rotation())
sketch3.addGeometry(Part.Circle(Vector(-82.3, -50.6, 0), Vector(0, 0, 1), 1.4), False)
sketch3.addGeometry(Part.Circle(Vector(-2.7, -96.6, 0), Vector(0, 0, 1), 1.4), False)
sketch3.addGeometry(Part.Circle(Vector(54.8, 3, 0), Vector(0, 0, 1), 1.4), False)
sketch3.addGeometry(Part.Circle(Vector(-24.8, 49, 0), Vector(0, 0, 1), 1.4), False)
sketch3.addGeometry(Part.LineSegment(Vector(-110.3, -34.5, 0), Vector(-98.2, -41.5, 0)), False)
sketch3.addGeometry(Part.ArcOfCircle(Part.Circle(Vector(-97.7, -40.6, 0), Vector(0, 0, 1), 1), math.radians(-120), math.radians(-30)), False)
sketch3.addGeometry(Part.LineSegment(Vector(-96.8, -41.1, 0), Vector(-92.8, -34.2, 0)), False)
sketch3.addGeometry(Part.ArcOfCircle(Part.Circle(Vector(-93.7, -33.7, 0), Vector(0, 0, 1), 1), math.radians(-30), math.radians(60)), False)
sketch3.addGeometry(Part.LineSegment(Vector(-93.2, -32.8, 0), Vector(-105.3, -25.8, 0)), False)
sketch3.addGeometry(Part.ArcOfCircle(Part.Circle(Vector(-105.8, -26.7, 0), Vector(0, 0, 1), 1), math.radians(60), math.radians(150)), False)
sketch3.addGeometry(Part.LineSegment(Vector(-106.7, -26.2, 0), Vector(-110.7, -33.1, 0)), False)
sketch3.addGeometry(Part.ArcOfCircle(Part.Circle(Vector(-109.8, -33.6, 0), Vector(0, 0, 1), 1), math.radians(150), math.radians(240)), False)
sketch3.addConstraint(Sketcher.Constraint("Tangent", 4, 2, 5, 1))
sketch3.addConstraint(Sketcher.Constraint("Tangent", 5, 2, 6, 1))
sketch3.addConstraint(Sketcher.Constraint("Tangent", 6, 2, 7, 1))
sketch3.addConstraint(Sketcher.Constraint("Tangent", 7, 2, 8, 1))
sketch3.addConstraint(Sketcher.Constraint("Tangent", 8, 2, 9, 1))
sketch3.addConstraint(Sketcher.Constraint("Tangent", 9, 2, 10, 1))
sketch3.addConstraint(Sketcher.Constraint("Tangent", 10, 2, 11, 1))
sketch3.addConstraint(Sketcher.Constraint("Tangent", 11, 2, 4, 1))
sketch3.addConstraint(Sketcher.Constraint("Equal", 0, 1))
sketch3.addConstraint(Sketcher.Constraint("Equal", 1, 2))
sketch3.addConstraint(Sketcher.Constraint("Equal", 2, 3))
sketch3.addConstraint(Sketcher.Constraint("Equal", 5, 7))
sketch3.addConstraint(Sketcher.Constraint("Equal", 7, 9))
sketch3.addConstraint(Sketcher.Constraint("Equal", 9, 11))
sketch3.addConstraint(Sketcher.Constraint("Perpendicular", 4, 6))
sketch3.addConstraint(Sketcher.Constraint("Perpendicular", 6, 8))
sketch3.addConstraint(Sketcher.Constraint("Perpendicular", 8, 10))
sketch3.addConstraint(Sketcher.Constraint("Radius", 5, Q("1 mm")))
sketch3.addConstraint(Sketcher.Constraint("Diameter", 0, Q("2.8 mm")))
sketch3.addConstraint(Sketcher.Constraint("Angle", 4, Q("-30.000006 deg")))
sketch3.addConstraint(Sketcher.Constraint("Distance", 4, Q("14 mm")))
sketch3.addConstraint(Sketcher.Constraint("Distance", 6, Q("8 mm")))
sketch3.addConstraint(Sketcher.Constraint("DistanceY", 1, 3, 7, 3, Q("62.929798 mm")))
sketch3.addConstraint(Sketcher.Constraint("DistanceX", 1, 3, -1, 1, Q("2.66812 mm")))
sketch3.addConstraint(Sketcher.Constraint("DistanceX", -1, 1, 2, 3, Q("54.831891 mm")))
sketch3.addConstraint(Sketcher.Constraint("DistanceY", -1, 1, 2, 3, Q("2.971608 mm")))
sketch3.addConstraint(Sketcher.Constraint("DistanceX", 3, 3, -1, 1, Q("24.842441 mm")))
sketch3.addConstraint(Sketcher.Constraint("DistanceY", 5, 3, -1, 1, Q("40.619711 mm")))
sketch3.addConstraint(Sketcher.Constraint("DistanceX", 11, 3, -1, 1, Q("109.790059 mm")))
sketch3.addConstraint(Sketcher.Constraint("DistanceX", 0, 3, 1, 3, Q("79.674332 mm")))
sketch3.addConstraint(Sketcher.Constraint("DistanceY", 1, 3, 0, 3, Q("46.000009 mm")))
sketch3.addConstraint(Sketcher.Constraint("DistanceY", 2, 3, 3, 3, Q("46.000009 mm")))
pocket2 = body.newObject("PartDesign::Pocket", "Pocket001")
pocket2.Profile = sketch3
pocket2.Type = "ThroughAll"

sketch4 = body.newObject("Sketcher::SketchObject", "Sketch003")
sketch4.AttachmentSupport = (doc.getObject("XY_Plane"), [""])
sketch4.MapMode = "FlatFace"
sketch4.AttachmentOffset = App.Placement(Vector(0, 0, 5), App.Rotation())
sketch4.addGeometry(Part.ArcOfCircle(Part.Circle(Vector(0, 0, 0), Vector(0, 0, 1), 89), math.radians(150), math.radians(165)), False)
sketch4.addGeometry(Part.ArcOfCircle(Part.Circle(Vector(-84, 22.5, 0), Vector(0, 0, 1), 2), math.radians(165), math.radians(345)), False)
sketch4.addGeometry(Part.ArcOfCircle(Part.Circle(Vector(0, 0, 0), Vector(0, 0, 1), 85), math.radians(150), math.radians(165)), False)
sketch4.addGeometry(Part.ArcOfCircle(Part.Circle(Vector(-75.3, 43.5, 0), Vector(0, 0, 1), 2), math.radians(-30), math.radians(150)), False)
sketch4.addGeometry(Part.ArcOfCircle(Part.Circle(Vector(-75.3, -43.5, 0), Vector(0, 0, 1), 2), math.radians(-150), math.radians(30)), False)
sketch4.addGeometry(Part.ArcOfCircle(Part.Circle(Vector(0, 0, 0), Vector(0, 0, 1), 85), math.radians(-165), math.radians(-150)), False)
sketch4.addGeometry(Part.ArcOfCircle(Part.Circle(Vector(-84, -22.5, 0), Vector(0, 0, 1), 2), math.radians(15), math.radians(195)), False)
sketch4.addGeometry(Part.ArcOfCircle(Part.Circle(Vector(0, 0, 0), Vector(0, 0, 1), 89), math.radians(-165), math.radians(-150)), False)
sketch4.addConstraint(Sketcher.Constraint("Tangent", 0, 2, 1, 1))
sketch4.addConstraint(Sketcher.Constraint("Tangent", 1, 2, 2, 2))
sketch4.addConstraint(Sketcher.Constraint("Tangent", 2, 1, 3, 1))
sketch4.addConstraint(Sketcher.Constraint("Tangent", 3, 2, 0, 1))
sketch4.addConstraint(Sketcher.Constraint("Tangent", 4, 2, 5, 2))
sketch4.addConstraint(Sketcher.Constraint("Tangent", 5, 1, 6, 1))
sketch4.addConstraint(Sketcher.Constraint("Tangent", 6, 2, 7, 1))
sketch4.addConstraint(Sketcher.Constraint("Tangent", 7, 2, 4, 1))
sketch4.addConstraint(Sketcher.Constraint("Coincident", 0, 3, -1, 1))
sketch4.addConstraint(Sketcher.Constraint("Coincident", 2, 3, -1, 1))
sketch4.addConstraint(Sketcher.Constraint("Coincident", 5, 3, -1, 1))
sketch4.addConstraint(Sketcher.Constraint("Coincident", 7, 3, -1, 1))
sketch4.addConstraint(Sketcher.Constraint("Equal", 3, 4))
sketch4.addConstraint(Sketcher.Constraint("Equal", 2, 5))
sketch4.addConstraint(Sketcher.Constraint("Vertical", 3, 3, 4, 3))
sketch4.addConstraint(Sketcher.Constraint("Vertical", 1, 3, 6, 3))
sketch4.addConstraint(Sketcher.Constraint("Radius", 0, Q("89 mm")))
sketch4.addConstraint(Sketcher.Constraint("Radius", 1, Q("2 mm")))
sketch4.addConstraint(Sketcher.Constraint("DistanceY", 4, 3, 3, 3, Q("87 mm")))
sketch4.addConstraint(Sketcher.Constraint("DistanceX", 0, 2, -1, 1, Q("85.967399 mm")))
pocket3 = body.newObject("PartDesign::Pocket", "Pocket002")
pocket3.Profile = sketch4
pocket3.Type = "ThroughAll"
doc.recompute()

polarpattern = body.newObject("PartDesign::PolarPattern", "PolarPattern")
polarpattern.Originals = [pocket3]
polarpattern.Axis = (doc.getObject("Z_Axis"), [""])
polarpattern.Angle = 360
polarpattern.Occurrences = 3
body.Tip = polarpattern

doc.recompute()
